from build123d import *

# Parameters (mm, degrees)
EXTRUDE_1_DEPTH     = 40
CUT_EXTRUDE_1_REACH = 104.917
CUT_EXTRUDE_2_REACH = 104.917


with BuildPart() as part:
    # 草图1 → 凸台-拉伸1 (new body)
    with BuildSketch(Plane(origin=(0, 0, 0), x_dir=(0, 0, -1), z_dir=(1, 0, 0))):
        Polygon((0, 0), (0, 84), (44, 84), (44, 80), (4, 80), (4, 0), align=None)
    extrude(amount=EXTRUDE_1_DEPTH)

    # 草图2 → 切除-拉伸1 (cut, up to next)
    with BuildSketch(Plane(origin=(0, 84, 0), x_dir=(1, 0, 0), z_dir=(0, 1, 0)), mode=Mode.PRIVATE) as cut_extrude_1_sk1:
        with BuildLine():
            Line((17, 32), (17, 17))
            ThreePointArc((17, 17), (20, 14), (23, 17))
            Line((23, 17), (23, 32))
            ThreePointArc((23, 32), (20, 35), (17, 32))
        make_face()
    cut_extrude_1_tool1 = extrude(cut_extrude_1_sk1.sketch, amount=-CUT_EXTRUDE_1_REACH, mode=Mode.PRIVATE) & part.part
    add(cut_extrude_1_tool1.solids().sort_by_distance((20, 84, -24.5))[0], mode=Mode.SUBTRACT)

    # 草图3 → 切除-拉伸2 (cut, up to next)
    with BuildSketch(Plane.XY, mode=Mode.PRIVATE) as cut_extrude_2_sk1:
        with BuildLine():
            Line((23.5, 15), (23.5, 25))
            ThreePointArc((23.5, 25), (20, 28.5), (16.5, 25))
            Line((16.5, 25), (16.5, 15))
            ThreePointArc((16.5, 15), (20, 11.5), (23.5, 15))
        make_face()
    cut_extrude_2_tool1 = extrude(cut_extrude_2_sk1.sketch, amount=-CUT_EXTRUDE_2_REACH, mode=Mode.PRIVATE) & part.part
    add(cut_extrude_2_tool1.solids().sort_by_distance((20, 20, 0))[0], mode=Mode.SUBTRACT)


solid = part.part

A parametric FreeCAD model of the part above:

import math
import FreeCAD as App
import Part
import Sketcher
from FreeCAD import Vector

doc = App.newDocument("Part")
body = doc.addObject("PartDesign::Body", "Body")

sketch1 = doc.addObject("Sketcher::SketchObject", "Sketch")
body.addObject(sketch1)
sketch1.AttachmentSupport = (doc.YZ_Plane, [""])
sketch1.MapMode = "FlatFace"
sketch1.addGeometry([
    Part.LineSegment(Vector(84, 0, 0), Vector(0, 0, 0)),
    Part.LineSegment(Vector(0, 0, 0), Vector(0, -4, 0)),
    Part.LineSegment(Vector(0, -4, 0), Vector(80, -4, 0)),
    Part.LineSegment(Vector(80, -4, 0), Vector(80, -44, 0)),
    Part.LineSegment(Vector(80, -44, 0), Vector(84, -44, 0)),
    Part.LineSegment(Vector(84, -44, 0), Vector(84, 0, 0)),
], False)
sketch1.addConstraint([
    Sketcher.Constraint("Coincident", 0, 2, 1, 1),
    Sketcher.Constraint("Coincident", 1, 2, 2, 1),
    Sketcher.Constraint("Coincident", 2, 2, 3, 1),
    Sketcher.Constraint("Coincident", 3, 2, 4, 1),
    Sketcher.Constraint("Coincident", 4, 2, 5, 1),
    Sketcher.Constraint("Coincident", 5, 2, 0, 1),
    Sketcher.Constraint("Horizontal", 0),
    Sketcher.Constraint("Vertical", 1),
    Sketcher.Constraint("Horizontal", 2),
    Sketcher.Constraint("Vertical", 3),
    Sketcher.Constraint("Horizontal", 4),
    Sketcher.Constraint("Vertical", 5),
    Sketcher.Constraint("Coincident", 0, 2, -1, 1),
    Sketcher.Constraint("Equal", 4, 1),
    Sketcher.Constraint("DistanceX", 0, 2, 0, 1, 84.0),
    Sketcher.Constraint("DistanceX", 2, 1, 2, 2, 80.0),
    Sketcher.Constraint("DistanceY", 3, 2, 3, 1, 40.0),
])
pad1 = doc.addObject("PartDesign::Pad", "Pad")
body.addObject(pad1)
pad1.Profile = sketch1
pad1.Length = 40

sketch2 = doc.addObject("Sketcher::SketchObject", "Sketch001")
body.addObject(sketch2)
sketch2.AttachmentSupport = (doc.XZ_Plane, [""])
sketch2.MapMode = "FlatFace"
sketch2.AttachmentOffset = App.Placement(Vector(0, 0, -84), App.Rotation())
sketch2.addGeometry([
    Part.LineSegment(Vector(17, -32, 0), Vector(17, -17, 0)),
    Part.ArcOfCircle(Part.Circle(Vector(20, -17, 0), Vector(0, 0, 1), 3), math.radians(0), math.radians(180)),
    Part.LineSegment(Vector(23, -17, 0), Vector(23, -32, 0)),
    Part.ArcOfCircle(Part.Circle(Vector(20, -32, 0), Vector(0, 0, 1), 3), math.radians(180), math.radians(360)),
], False)
sketch2.addConstraint([
    Sketcher.Constraint("Tangent", 0, 2, 1, 2),
    Sketcher.Constraint("Tangent", 1, 1, 2, 1),
    Sketcher.Constraint("Tangent", 2, 2, 3, 2),
    Sketcher.Constraint("Tangent", 3, 1, 0, 1),
    Sketcher.Constraint("Vertical", 0),
    Sketcher.Constraint("Vertical", 2),
    Sketcher.Constraint("Radius", 1, 3.0),
    Sketcher.Constraint("DistanceY", 0, 1, 0, 2, 15.0),
    Sketcher.Constraint("DistanceX", -1, 1, 1, 3, 20.0),
    Sketcher.Constraint("DistanceY", 1, 3, -1, 1, 17.0),
])
pocket1 = doc.addObject("PartDesign::Pocket", "Pocket")
body.addObject(pocket1)
pocket1.Profile = sketch2
pocket1.Type = "UpToFirst"
pocket1.Reversed = True

sketch3 = doc.addObject("Sketcher::SketchObject", "Sketch002")
body.addObject(sketch3)
sketch3.AttachmentSupport = (doc.XY_Plane, [""])
sketch3.MapMode = "FlatFace"
sketch3.addGeometry([
    Part.LineSegment(Vector(23.5, 15, 0), Vector(23.5, 25, 0)),
    Part.ArcOfCircle(Part.Circle(Vector(20, 25, 0), Vector(0, 0, 1), 3.5), math.radians(0), math.radians(180)),
    Part.LineSegment(Vector(16.5, 25, 0), Vector(16.5, 15, 0)),
    Part.ArcOfCircle(Part.Circle(Vector(20, 15, 0), Vector(0, 0, 1), 3.5), math.radians(180), math.radians(360)),
], False)
sketch3.addConstraint([
    Sketcher.Constraint("Tangent", 0, 2, 1, 1),
    Sketcher.Constraint("Tangent", 1, 2, 2, 1),
    Sketcher.Constraint("Tangent", 2, 2, 3, 1),
    Sketcher.Constraint("Tangent", 3, 2, 0, 1),
    Sketcher.Constraint("Vertical", 0),
    Sketcher.Constraint("Vertical", 2),
    Sketcher.Constraint("Radius", 1, 3.5),
    Sketcher.Constraint("DistanceY", 0, 1, 0, 2, 10.0),
    Sketcher.Constraint("DistanceX", -1, 1, 1, 3, 20.0),
    Sketcher.Constraint("DistanceY", -1, 1, 1, 3, 25.0),
])
pocket2 = doc.addObject("PartDesign::Pocket", "Pocket001")
body.addObject(pocket2)
pocket2.Profile = sketch3
pocket2.Type = "UpToFirst"

doc.recompute()
